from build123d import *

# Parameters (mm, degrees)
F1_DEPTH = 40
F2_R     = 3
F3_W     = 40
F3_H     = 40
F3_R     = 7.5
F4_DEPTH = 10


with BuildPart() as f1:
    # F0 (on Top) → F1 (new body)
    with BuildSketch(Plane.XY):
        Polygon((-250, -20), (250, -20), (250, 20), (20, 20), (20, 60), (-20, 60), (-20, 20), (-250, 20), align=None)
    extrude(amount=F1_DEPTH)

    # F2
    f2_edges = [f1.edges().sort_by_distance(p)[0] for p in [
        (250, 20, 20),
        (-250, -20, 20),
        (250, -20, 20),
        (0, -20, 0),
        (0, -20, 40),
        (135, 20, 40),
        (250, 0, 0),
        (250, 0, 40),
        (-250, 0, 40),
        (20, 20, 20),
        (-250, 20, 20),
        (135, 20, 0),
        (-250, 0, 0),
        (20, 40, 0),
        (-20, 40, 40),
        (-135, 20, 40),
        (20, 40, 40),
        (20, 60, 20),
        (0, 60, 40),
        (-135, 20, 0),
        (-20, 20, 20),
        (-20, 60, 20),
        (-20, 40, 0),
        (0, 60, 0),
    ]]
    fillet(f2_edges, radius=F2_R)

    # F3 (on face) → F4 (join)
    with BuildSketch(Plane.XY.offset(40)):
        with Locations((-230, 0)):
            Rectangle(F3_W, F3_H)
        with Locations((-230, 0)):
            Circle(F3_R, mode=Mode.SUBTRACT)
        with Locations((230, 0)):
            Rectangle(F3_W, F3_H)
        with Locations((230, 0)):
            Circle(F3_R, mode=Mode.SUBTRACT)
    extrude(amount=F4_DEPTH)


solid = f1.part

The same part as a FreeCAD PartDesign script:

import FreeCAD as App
import Part
import Sketcher

V = App.Vector
Q = App.Units.Quantity

doc = App.newDocument("Part")
body = doc.addObject("PartDesign::Body", "Body")

# Sketch on XY plane
sketch1 = body.newObject("Sketcher::SketchObject", "Sketch")
sketch1.AttachmentSupport = (doc.getObject("XY_Plane"), [""])
sketch1.MapMode = "FlatFace"
sketch1.addGeometry(Part.LineSegment(V(-250, -20, 0), V(250, -20, 0)), False)
sketch1.addGeometry(Part.LineSegment(V(250, -20, 0), V(250, 20, 0)), False)
sketch1.addGeometry(Part.LineSegment(V(250, 20, 0), V(20, 20, 0)), False)
sketch1.addGeometry(Part.LineSegment(V(20, 20, 0), V(20, 60, 0)), False)
sketch1.addGeometry(Part.LineSegment(V(20, 60, 0), V(-20, 60, 0)), False)
sketch1.addGeometry(Part.LineSegment(V(-20, 60, 0), V(-20, 20, 0)), False)
sketch1.addGeometry(Part.LineSegment(V(-20, 20, 0), V(-250, 20, 0)), False)
sketch1.addGeometry(Part.LineSegment(V(-250, 20, 0), V(-250, -20, 0)), False)
sketch1.addConstraint(Sketcher.Constraint("Coincident", 0, 2, 1, 1))
sketch1.addConstraint(Sketcher.Constraint("Coincident", 1, 2, 2, 1))
sketch1.addConstraint(Sketcher.Constraint("Coincident", 2, 2, 3, 1))
sketch1.addConstraint(Sketcher.Constraint("Coincident", 3, 2, 4, 1))
sketch1.addConstraint(Sketcher.Constraint("Coincident", 4, 2, 5, 1))
sketch1.addConstraint(Sketcher.Constraint("Coincident", 5, 2, 6, 1))
sketch1.addConstraint(Sketcher.Constraint("Coincident", 6, 2, 7, 1))
sketch1.addConstraint(Sketcher.Constraint("Coincident", 7, 2, 0, 1))
sketch1.addConstraint(Sketcher.Constraint("Horizontal", 0))
sketch1.addConstraint(Sketcher.Constraint("Vertical", 1))
sketch1.addConstraint(Sketcher.Constraint("Horizontal", 2))
sketch1.addConstraint(Sketcher.Constraint("Vertical", 3))
sketch1.addConstraint(Sketcher.Constraint("Horizontal", 4))
sketch1.addConstraint(Sketcher.Constraint("Vertical", 5))
sketch1.addConstraint(Sketcher.Constraint("Horizontal", 6))
sketch1.addConstraint(Sketcher.Constraint("Vertical", 7))
sketch1.addConstraint(Sketcher.Constraint("Symmetric", 0, 2, 6, 2, -1, 1))
sketch1.addConstraint(Sketcher.Constraint("Symmetric", 2, 2, 5, 2, -2))
sketch1.addConstraint(Sketcher.Constraint("Equal", 4, 1))
sketch1.addConstraint(Sketcher.Constraint("Equal", 1, 3))
sketch1.addConstraint(Sketcher.Constraint("DistanceX", 0, 1, 0, 2, Q("500 mm")))
sketch1.addConstraint(Sketcher.Constraint("DistanceX", 2, 2, 2, 1, Q("230 mm")))
pad1 = body.newObject("PartDesign::Pad", "Pad")
pad1.Profile = sketch1
pad1.Length = 40
doc.recompute()

fillet = body.newObject("PartDesign::Fillet", "Fillet")
fillet.Base = (pad1, ["Edge1"])
fillet.UseAllEdges = True
fillet.Radius = 3

# Sketch on XY plane
sketch2 = body.newObject("Sketcher::SketchObject", "Sketch001")
sketch2.AttachmentSupport = (doc.getObject("XY_Plane"), [""])
sketch2.MapMode = "FlatFace"
sketch2.AttachmentOffset = App.Placement(V(0, 0, 40), App.Rotation())
sketch2.addGeometry(Part.LineSegment(V(-250, 20, 0), V(-250, -20, 0)), False)
sketch2.addGeometry(Part.LineSegment(V(-250, -20, 0), V(-210, -20, 0)), False)
sketch2.addGeometry(Part.LineSegment(V(-210, -20, 0), V(-210, 20, 0)), False)
sketch2.addGeometry(Part.LineSegment(V(-210, 20, 0), V(-250, 20, 0)), False)
sketch2.addGeometry(Part.Circle(V(-230, 0, 0), V(0, 0, 1), 8), False)
sketch2.addGeometry(Part.LineSegment(V(210, 20, 0), V(210, -20, 0)), False)
sketch2.addGeometry(Part.LineSegment(V(210, -20, 0), V(250, -20, 0)), False)
sketch2.addGeometry(Part.LineSegment(V(250, -20, 0), V(250, 20, 0)), False)
sketch2.addGeometry(Part.LineSegment(V(250, 20, 0), V(210, 20, 0)), False)
sketch2.addGeometry(Part.Circle(V(230, 0, 0), V(0, 0, 1), 8), False)
sketch2.addConstraint(Sketcher.Constraint("Coincident", 0, 2, 1, 1))
sketch2.addConstraint(Sketcher.Constraint("Coincident", 1, 2, 2, 1))
sketch2.addConstraint(Sketcher.Constraint("Coincident", 2, 2, 3, 1))
sketch2.addConstraint(Sketcher.Constraint("Coincident", 3, 2, 0, 1))
sketch2.addConstraint(Sketcher.Constraint("Coincident", 5, 2, 6, 1))
sketch2.addConstraint(Sketcher.Constraint("Coincident", 6, 2, 7, 1))
sketch2.addConstraint(Sketcher.Constraint("Coincident", 7, 2, 8, 1))
sketch2.addConstraint(Sketcher.Constraint("Coincident", 8, 2, 5, 1))
sketch2.addConstraint(Sketcher.Constraint("Vertical", 0))
sketch2.addConstraint(Sketcher.Constraint("Horizontal", 1))
sketch2.addConstraint(Sketcher.Constraint("Vertical", 2))
sketch2.addConstraint(Sketcher.Constraint("Horizontal", 3))
sketch2.addConstraint(Sketcher.Constraint("Vertical", 5))
sketch2.addConstraint(Sketcher.Constraint("Horizontal", 6))
sketch2.addConstraint(Sketcher.Constraint("Vertical", 7))
sketch2.addConstraint(Sketcher.Constraint("Horizontal", 8))
sketch2.addConstraint(Sketcher.Constraint("Equal", 4, 9))
sketch2.addConstraint(Sketcher.Constraint("Symmetric", 4, 3, 9, 3, -1, 1))
sketch2.addConstraint(Sketcher.Constraint("Symmetric", 2, 2, 5, 2, -1, 1))
sketch2.addConstraint(Sketcher.Constraint("Symmetric", 0, 2, 7, 2, -1, 1))
sketch2.addConstraint(Sketcher.Constraint("PointOnObject", 4, 3, -1))
sketch2.addConstraint(Sketcher.Constraint("Horizontal", 1, 2, 5, 2))
sketch2.addConstraint(Sketcher.Constraint("Equal", 8, 0))
sketch2.addConstraint(Sketcher.Constraint("Diameter", 4, Q("15 mm")))
sketch2.addConstraint(Sketcher.Constraint("DistanceX", 1, 1, 1, 2, Q("40 mm")))
sketch2.addConstraint(Sketcher.Constraint("DistanceX", 4, 3, -1, 1, Q("230 mm")))
sketch2.addConstraint(Sketcher.Constraint("DistanceX", 0, 2, -1, 1, Q("250 mm")))
pad2 = body.newObject("PartDesign::Pad", "Pad001")
pad2.Profile = sketch2
pad2.Length = 10

doc.recompute()
